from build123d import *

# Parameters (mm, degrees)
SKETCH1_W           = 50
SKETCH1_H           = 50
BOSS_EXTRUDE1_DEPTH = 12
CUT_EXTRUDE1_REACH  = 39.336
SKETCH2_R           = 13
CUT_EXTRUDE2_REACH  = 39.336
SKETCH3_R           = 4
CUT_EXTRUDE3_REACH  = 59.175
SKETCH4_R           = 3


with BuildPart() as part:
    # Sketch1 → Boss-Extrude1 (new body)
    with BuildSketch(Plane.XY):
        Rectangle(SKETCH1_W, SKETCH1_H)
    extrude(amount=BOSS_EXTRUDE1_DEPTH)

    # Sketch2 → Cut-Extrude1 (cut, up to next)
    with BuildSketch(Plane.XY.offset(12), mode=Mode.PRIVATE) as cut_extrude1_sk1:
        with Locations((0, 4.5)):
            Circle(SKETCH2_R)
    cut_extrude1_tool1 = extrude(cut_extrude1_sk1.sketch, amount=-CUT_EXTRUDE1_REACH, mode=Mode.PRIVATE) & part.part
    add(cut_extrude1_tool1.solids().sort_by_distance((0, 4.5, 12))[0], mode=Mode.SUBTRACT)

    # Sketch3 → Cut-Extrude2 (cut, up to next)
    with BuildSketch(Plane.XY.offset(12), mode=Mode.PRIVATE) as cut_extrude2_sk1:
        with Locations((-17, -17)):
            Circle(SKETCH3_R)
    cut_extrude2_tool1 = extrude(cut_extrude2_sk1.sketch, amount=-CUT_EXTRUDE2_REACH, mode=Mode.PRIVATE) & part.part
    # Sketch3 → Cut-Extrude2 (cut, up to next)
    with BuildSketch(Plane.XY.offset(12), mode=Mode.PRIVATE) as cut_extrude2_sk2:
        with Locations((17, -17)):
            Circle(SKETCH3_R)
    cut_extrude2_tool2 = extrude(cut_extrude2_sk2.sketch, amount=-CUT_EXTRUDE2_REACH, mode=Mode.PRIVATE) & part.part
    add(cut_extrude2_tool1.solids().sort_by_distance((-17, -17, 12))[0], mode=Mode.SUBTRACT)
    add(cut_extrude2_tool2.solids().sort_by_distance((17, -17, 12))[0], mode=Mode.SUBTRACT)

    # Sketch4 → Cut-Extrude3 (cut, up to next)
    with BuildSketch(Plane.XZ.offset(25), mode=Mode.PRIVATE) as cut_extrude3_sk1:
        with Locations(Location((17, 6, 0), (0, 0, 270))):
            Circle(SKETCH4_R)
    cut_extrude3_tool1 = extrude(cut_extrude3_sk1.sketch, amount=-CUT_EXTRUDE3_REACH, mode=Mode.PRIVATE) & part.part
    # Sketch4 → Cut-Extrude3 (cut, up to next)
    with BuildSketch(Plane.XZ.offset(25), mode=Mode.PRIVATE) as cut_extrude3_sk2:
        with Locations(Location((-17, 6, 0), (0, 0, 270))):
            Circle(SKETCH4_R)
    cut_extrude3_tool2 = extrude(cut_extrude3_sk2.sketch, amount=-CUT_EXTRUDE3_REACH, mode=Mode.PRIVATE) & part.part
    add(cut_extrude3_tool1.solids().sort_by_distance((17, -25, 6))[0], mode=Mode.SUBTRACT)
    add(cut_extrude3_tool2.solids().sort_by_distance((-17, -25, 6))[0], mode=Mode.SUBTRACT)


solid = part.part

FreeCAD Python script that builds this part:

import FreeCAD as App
import Part
import Sketcher
Q = App.Units.Quantity

doc = App.newDocument("Part")
body = doc.addObject("PartDesign::Body", "Body")

sketch1 = body.newObject("Sketcher::SketchObject", "Sketch")
sketch1.AttachmentSupport = (doc.getObject("XY_Plane"), [""])
sketch1.MapMode = "FlatFace"
sketch1.addGeometry([
    Part.LineSegment(App.Vector(-25, 25, 0), App.Vector(-25, -25, 0)),
    Part.LineSegment(App.Vector(-25, -25, 0), App.Vector(25, -25, 0)),
    Part.LineSegment(App.Vector(25, -25, 0), App.Vector(25, 25, 0)),
    Part.LineSegment(App.Vector(25, 25, 0), App.Vector(-25, 25, 0)),
], False)
sketch1.addConstraint([
    Sketcher.Constraint("Coincident", 0, 2, 1, 1),
    Sketcher.Constraint("Coincident", 1, 2, 2, 1),
    Sketcher.Constraint("Coincident", 2, 2, 3, 1),
    Sketcher.Constraint("Coincident", 3, 2, 0, 1),
    Sketcher.Constraint("Vertical", 0),
    Sketcher.Constraint("Horizontal", 1),
    Sketcher.Constraint("Vertical", 2),
    Sketcher.Constraint("Horizontal", 3),
    Sketcher.Constraint("Symmetric", 0, 2, 2, 2, -1, 1),
    Sketcher.Constraint("Equal", 3, 0),
    Sketcher.Constraint("DistanceX", 1, 1, 1, 2, Q("50 mm")),
])
pad1 = body.newObject("PartDesign::Pad", "Pad")
pad1.Profile = sketch1
pad1.Length = 12

sketch2 = body.newObject("Sketcher::SketchObject", "Sketch001")
sketch2.AttachmentSupport = (doc.getObject("XY_Plane"), [""])
sketch2.MapMode = "FlatFace"
sketch2.AttachmentOffset = App.Placement(App.Vector(0, 0, 12), App.Rotation())
sketch2.addGeometry(Part.Circle(App.Vector(0, 4, 0), App.Vector(0, 0, 1), 13), False)
sketch2.addConstraint([
    Sketcher.Constraint("PointOnObject", 0, 3, -2),
    Sketcher.Constraint("Diameter", 0, Q("26 mm")),
    Sketcher.Constraint("DistanceY", -1, 1, 0, 3, Q("4.5 mm")),
])
pocket1 = body.newObject("PartDesign::Pocket", "Pocket")
pocket1.Profile = sketch2
pocket1.Type = "UpToFirst"

sketch3 = body.newObject("Sketcher::SketchObject", "Sketch002")
sketch3.AttachmentSupport = (doc.getObject("XY_Plane"), [""])
sketch3.MapMode = "FlatFace"
sketch3.AttachmentOffset = App.Placement(App.Vector(0, 0, 12), App.Rotation())
sketch3.addGeometry(Part.Circle(App.Vector(-17, -17, 0), App.Vector(0, 0, 1), 4), False)
sketch3.addConstraint([
    Sketcher.Constraint("Diameter", 0, Q("8 mm")),
    Sketcher.Constraint("DistanceX", 0, 3, -1, 1, Q("17 mm")),
    Sketcher.Constraint("DistanceY", 0, 3, -1, 1, Q("17 mm")),
])
pocket2 = body.newObject("PartDesign::Pocket", "Pocket001")
pocket2.Profile = sketch3
pocket2.Type = "UpToFirst"

sketch4 = body.newObject("Sketcher::SketchObject", "Sketch003")
sketch4.AttachmentSupport = (doc.getObject("XY_Plane"), [""])
sketch4.MapMode = "FlatFace"
sketch4.AttachmentOffset = App.Placement(App.Vector(0, 0, 12), App.Rotation())
sketch4.addGeometry(Part.Circle(App.Vector(17, -17, 0), App.Vector(0, 0, 1), 4), False)
sketch4.addConstraint([
    Sketcher.Constraint("Diameter", 0, Q("8 mm")),
    Sketcher.Constraint("DistanceX", -1, 1, 0, 3, Q("17 mm")),
    Sketcher.Constraint("DistanceY", 0, 3, -1, 1, Q("17 mm")),
])
pocket3 = body.newObject("PartDesign::Pocket", "Pocket002")
pocket3.Profile = sketch4
pocket3.Type = "UpToFirst"

sketch5 = body.newObject("Sketcher::SketchObject", "Sketch004")
sketch5.AttachmentSupport = (doc.getObject("XZ_Plane"), [""])
sketch5.MapMode = "FlatFace"
sketch5.AttachmentOffset = App.Placement(App.Vector(0, 0, 25), App.Rotation())
sketch5.addGeometry(Part.Circle(App.Vector(17, 6, 0), App.Vector(0, 0, 1), 3), False)
sketch5.addConstraint([
    Sketcher.Constraint("Diameter", 0, Q("6 mm")),
    Sketcher.Constraint("DistanceX", -1, 1, 0, 3, Q("17 mm")),
    Sketcher.Constraint("DistanceY", -1, 1, 0, 3, Q("6 mm")),
])
pocket4 = body.newObject("PartDesign::Pocket", "Pocket003")
pocket4.Profile = sketch5
pocket4.Type = "UpToFirst"

sketch6 = body.newObject("Sketcher::SketchObject", "Sketch005")
sketch6.AttachmentSupport = (doc.getObject("XZ_Plane"), [""])
sketch6.MapMode = "FlatFace"
sketch6.AttachmentOffset = App.Placement(App.Vector(0, 0, 25), App.Rotation())
sketch6.addGeometry(Part.Circle(App.Vector(-17, 6, 0), App.Vector(0, 0, 1), 3), False)
sketch6.addConstraint([
    Sketcher.Constraint("Diameter", 0, Q("6 mm")),
    Sketcher.Constraint("DistanceX", 0, 3, -1, 1, Q("17 mm")),
    Sketcher.Constraint("DistanceY", -1, 1, 0, 3, Q("6 mm")),
])
pocket5 = body.newObject("PartDesign::Pocket", "Pocket004")
pocket5.Profile = sketch6
pocket5.Type = "UpToFirst"

doc.recompute()
